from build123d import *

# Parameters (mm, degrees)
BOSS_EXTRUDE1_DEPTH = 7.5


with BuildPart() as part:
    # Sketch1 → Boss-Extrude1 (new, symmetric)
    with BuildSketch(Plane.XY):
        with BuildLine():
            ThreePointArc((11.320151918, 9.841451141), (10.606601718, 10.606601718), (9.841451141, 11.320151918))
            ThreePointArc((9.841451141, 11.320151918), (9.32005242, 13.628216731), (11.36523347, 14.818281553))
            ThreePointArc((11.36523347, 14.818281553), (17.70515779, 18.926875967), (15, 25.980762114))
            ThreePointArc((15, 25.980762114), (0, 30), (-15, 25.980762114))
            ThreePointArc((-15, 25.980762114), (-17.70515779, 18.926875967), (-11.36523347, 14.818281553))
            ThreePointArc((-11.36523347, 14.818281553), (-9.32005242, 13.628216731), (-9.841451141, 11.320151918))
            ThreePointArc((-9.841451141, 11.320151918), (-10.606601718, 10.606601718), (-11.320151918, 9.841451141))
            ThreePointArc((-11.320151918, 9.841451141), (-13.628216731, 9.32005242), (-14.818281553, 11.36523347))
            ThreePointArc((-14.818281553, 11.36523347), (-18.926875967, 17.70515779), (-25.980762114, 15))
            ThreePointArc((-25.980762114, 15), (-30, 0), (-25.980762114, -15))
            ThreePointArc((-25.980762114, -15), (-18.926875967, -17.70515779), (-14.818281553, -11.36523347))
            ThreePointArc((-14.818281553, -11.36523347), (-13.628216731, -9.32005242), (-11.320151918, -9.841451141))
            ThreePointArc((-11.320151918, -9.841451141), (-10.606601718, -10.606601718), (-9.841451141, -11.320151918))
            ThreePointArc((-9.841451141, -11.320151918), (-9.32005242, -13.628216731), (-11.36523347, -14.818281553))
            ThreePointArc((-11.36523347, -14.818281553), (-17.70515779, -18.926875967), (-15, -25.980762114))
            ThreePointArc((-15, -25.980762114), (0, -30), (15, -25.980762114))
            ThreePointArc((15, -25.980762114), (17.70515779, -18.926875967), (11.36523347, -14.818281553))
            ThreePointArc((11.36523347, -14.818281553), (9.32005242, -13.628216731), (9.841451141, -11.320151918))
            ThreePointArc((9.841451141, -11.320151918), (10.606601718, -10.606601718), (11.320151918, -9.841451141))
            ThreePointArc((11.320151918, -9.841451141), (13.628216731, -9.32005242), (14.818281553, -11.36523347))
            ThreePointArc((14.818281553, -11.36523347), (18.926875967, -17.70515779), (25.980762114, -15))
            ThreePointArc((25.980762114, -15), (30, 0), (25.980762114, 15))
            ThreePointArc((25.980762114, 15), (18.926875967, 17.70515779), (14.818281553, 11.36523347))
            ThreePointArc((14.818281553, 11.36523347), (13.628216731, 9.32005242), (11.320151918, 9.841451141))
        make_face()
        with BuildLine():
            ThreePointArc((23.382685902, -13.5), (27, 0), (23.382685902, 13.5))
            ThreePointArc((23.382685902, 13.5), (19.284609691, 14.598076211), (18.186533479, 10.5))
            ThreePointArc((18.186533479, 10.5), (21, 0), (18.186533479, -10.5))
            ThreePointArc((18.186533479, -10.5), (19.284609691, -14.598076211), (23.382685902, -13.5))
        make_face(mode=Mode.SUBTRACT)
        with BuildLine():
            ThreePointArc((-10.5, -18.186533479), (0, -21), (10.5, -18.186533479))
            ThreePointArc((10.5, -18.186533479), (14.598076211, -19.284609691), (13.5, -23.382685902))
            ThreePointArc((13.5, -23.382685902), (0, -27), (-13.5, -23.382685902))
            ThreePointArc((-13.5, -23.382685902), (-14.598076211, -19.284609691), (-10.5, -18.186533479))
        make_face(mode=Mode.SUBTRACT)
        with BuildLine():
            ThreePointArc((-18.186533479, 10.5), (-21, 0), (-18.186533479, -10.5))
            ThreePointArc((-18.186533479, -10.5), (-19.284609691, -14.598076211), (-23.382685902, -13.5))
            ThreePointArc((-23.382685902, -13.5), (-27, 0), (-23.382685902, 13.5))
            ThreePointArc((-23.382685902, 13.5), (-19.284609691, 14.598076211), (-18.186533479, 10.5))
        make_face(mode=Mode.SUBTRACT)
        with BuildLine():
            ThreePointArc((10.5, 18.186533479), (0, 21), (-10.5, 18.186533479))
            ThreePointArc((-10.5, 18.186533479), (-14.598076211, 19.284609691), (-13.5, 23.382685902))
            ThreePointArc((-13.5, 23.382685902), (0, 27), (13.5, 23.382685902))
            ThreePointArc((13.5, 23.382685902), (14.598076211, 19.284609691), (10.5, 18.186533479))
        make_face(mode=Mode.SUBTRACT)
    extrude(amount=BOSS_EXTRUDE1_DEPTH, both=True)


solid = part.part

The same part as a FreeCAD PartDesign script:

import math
import FreeCAD as App
import Part
import Sketcher

V = App.Vector
Q = App.Units.Quantity

doc = App.newDocument("Part")
body = doc.addObject("PartDesign::Body", "Body")

# Sketch on XY plane
sketch1 = body.newObject("Sketcher::SketchObject", "Sketch")
sketch1.AttachmentSupport = (doc.getObject("XY_Plane"), [""])
sketch1.MapMode = "FlatFace"
sketch1.addGeometry(Part.ArcOfCircle(Part.Circle(V(0, 0, 0), V(0, 0, 1), 15), math.radians(41), math.radians(49)), False)
sketch1.addGeometry(Part.ArcOfCircle(Part.Circle(V(11.2, 12.8, 0), V(0, 0, 1), 2), math.radians(84), math.radians(229)), False)
sketch1.addGeometry(Part.ArcOfCircle(Part.Circle(V(12, 20.8, 0), V(0, 0, 1), 6), math.radians(-96), math.radians(60)), False)
sketch1.addGeometry(Part.ArcOfCircle(Part.Circle(V(0, 0, 0), V(0, 0, 1), 30), math.radians(60), math.radians(120)), False)
sketch1.addGeometry(Part.ArcOfCircle(Part.Circle(V(-12, 20.8, 0), V(0, 0, 1), 6), math.radians(120), math.radians(276)), False)
sketch1.addGeometry(Part.ArcOfCircle(Part.Circle(V(-11.2, 12.8, 0), V(0, 0, 1), 2), math.radians(-49), math.radians(96)), False)
sketch1.addGeometry(Part.ArcOfCircle(Part.Circle(V(0, 0, 0), V(0, 0, 1), 15), math.radians(131), math.radians(139)), False)
sketch1.addGeometry(Part.ArcOfCircle(Part.Circle(V(-12.8, 11.2, 0), V(0, 0, 1), 2), math.radians(174), math.radians(319)), False)
sketch1.addGeometry(Part.ArcOfCircle(Part.Circle(V(-20.8, 12, 0), V(0, 0, 1), 6), math.radians(-6), math.radians(150)), False)
sketch1.addGeometry(Part.ArcOfCircle(Part.Circle(V(0, 0, 0), V(0, 0, 1), 30), math.radians(150), math.radians(210)), False)
sketch1.addGeometry(Part.ArcOfCircle(Part.Circle(V(-20.8, -12, 0), V(0, 0, 1), 6), math.radians(-150), math.radians(6)), False)
sketch1.addGeometry(Part.ArcOfCircle(Part.Circle(V(-12.8, -11.2, 0), V(0, 0, 1), 2), math.radians(41), math.radians(186)), False)
sketch1.addGeometry(Part.ArcOfCircle(Part.Circle(V(0, 0, 0), V(0, 0, 1), 15), math.radians(-139), math.radians(-131)), False)
sketch1.addGeometry(Part.ArcOfCircle(Part.Circle(V(-11.2, -12.8, 0), V(0, 0, 1), 2), math.radians(-96), math.radians(49)), False)
sketch1.addGeometry(Part.ArcOfCircle(Part.Circle(V(-12, -20.8, 0), V(0, 0, 1), 6), math.radians(84), math.radians(240)), False)
sketch1.addGeometry(Part.ArcOfCircle(Part.Circle(V(0, 0, 0), V(0, 0, 1), 30), math.radians(-120), math.radians(-60)), False)
sketch1.addGeometry(Part.ArcOfCircle(Part.Circle(V(12, -20.8, 0), V(0, 0, 1), 6), math.radians(-60), math.radians(96)), False)
sketch1.addGeometry(Part.ArcOfCircle(Part.Circle(V(11.2, -12.8, 0), V(0, 0, 1), 2), math.radians(131), math.radians(276)), False)
sketch1.addGeometry(Part.ArcOfCircle(Part.Circle(V(0, 0, 0), V(0, 0, 1), 15), math.radians(-49), math.radians(-41)), False)
sketch1.addGeometry(Part.ArcOfCircle(Part.Circle(V(12.8, -11.2, 0), V(0, 0, 1), 2), math.radians(-6), math.radians(139)), False)
sketch1.addGeometry(Part.ArcOfCircle(Part.Circle(V(20.8, -12, 0), V(0, 0, 1), 6), math.radians(174), math.radians(330)), False)
sketch1.addGeometry(Part.ArcOfCircle(Part.Circle(V(0, 0, 0), V(0, 0, 1), 30), math.radians(-30), math.radians(30)), False)
sketch1.addGeometry(Part.ArcOfCircle(Part.Circle(V(20.8, 12, 0), V(0, 0, 1), 6), math.radians(30), math.radians(186)), False)
sketch1.addGeometry(Part.ArcOfCircle(Part.Circle(V(12.8, 11.2, 0), V(0, 0, 1), 2), math.radians(-139), math.radians(6)), False)
sketch1.addGeometry(Part.ArcOfCircle(Part.Circle(V(-12, -20.8, 0), V(0, 0, 1), 3), math.radians(60), math.radians(240)), False)
sketch1.addGeometry(Part.ArcOfCircle(Part.Circle(V(0, 0, 0), V(0, 0, 1), 21), math.radians(-120), math.radians(-60)), False)
sketch1.addGeometry(Part.ArcOfCircle(Part.Circle(V(12, -20.8, 0), V(0, 0, 1), 3), math.radians(-60), math.radians(120)), False)
sketch1.addGeometry(Part.ArcOfCircle(Part.Circle(V(0, 0, 0), V(0, 0, 1), 27), math.radians(-120), math.radians(-60)), False)
sketch1.addGeometry(Part.ArcOfCircle(Part.Circle(V(-20.8, 12, 0), V(0, 0, 1), 3), math.radians(-30), math.radians(150)), False)
sketch1.addGeometry(Part.ArcOfCircle(Part.Circle(V(0, 0, 0), V(0, 0, 1), 21), math.radians(150), math.radians(210)), False)
sketch1.addGeometry(Part.ArcOfCircle(Part.Circle(V(-20.8, -12, 0), V(0, 0, 1), 3), math.radians(-150), math.radians(30)), False)
sketch1.addGeometry(Part.ArcOfCircle(Part.Circle(V(0, 0, 0), V(0, 0, 1), 27), math.radians(150), math.radians(210)), False)
sketch1.addGeometry(Part.ArcOfCircle(Part.Circle(V(0, 0, 0), V(0, 0, 1), 27), math.radians(-30), math.radians(30)), False)
sketch1.addGeometry(Part.ArcOfCircle(Part.Circle(V(20.8, -12, 0), V(0, 0, 1), 3), math.radians(150), math.radians(330)), False)
sketch1.addGeometry(Part.ArcOfCircle(Part.Circle(V(0, 0, 0), V(0, 0, 1), 21), math.radians(-30), math.radians(30)), False)
sketch1.addGeometry(Part.ArcOfCircle(Part.Circle(V(20.8, 12, 0), V(0, 0, 1), 3), math.radians(30), math.radians(210)), False)
sketch1.addGeometry(Part.ArcOfCircle(Part.Circle(V(12, 20.8, 0), V(0, 0, 1), 3), math.radians(-120), math.radians(60)), False)
sketch1.addGeometry(Part.ArcOfCircle(Part.Circle(V(0, 0, 0), V(0, 0, 1), 21), math.radians(60), math.radians(120)), False)
sketch1.addGeometry(Part.ArcOfCircle(Part.Circle(V(-12, 20.8, 0), V(0, 0, 1), 3), math.radians(120), math.radians(300)), False)
sketch1.addGeometry(Part.ArcOfCircle(Part.Circle(V(0, 0, 0), V(0, 0, 1), 27), math.radians(60), math.radians(120)), False)
sketch1.addConstraint(Sketcher.Constraint("Tangent", 0, 2, 1, 2))
sketch1.addConstraint(Sketcher.Constraint("Tangent", 1, 1, 2, 1))
sketch1.addConstraint(Sketcher.Constraint("Tangent", 2, 2, 3, 1))
sketch1.addConstraint(Sketcher.Constraint("Tangent", 3, 2, 4, 1))
sketch1.addConstraint(Sketcher.Constraint("Tangent", 4, 2, 5, 2))
sketch1.addConstraint(Sketcher.Constraint("Tangent", 5, 1, 6, 1))
sketch1.addConstraint(Sketcher.Constraint("Tangent", 6, 2, 7, 2))
sketch1.addConstraint(Sketcher.Constraint("Tangent", 7, 1, 8, 1))
sketch1.addConstraint(Sketcher.Constraint("Tangent", 8, 2, 9, 1))
sketch1.addConstraint(Sketcher.Constraint("Tangent", 9, 2, 10, 1))
sketch1.addConstraint(Sketcher.Constraint("Tangent", 10, 2, 11, 2))
sketch1.addConstraint(Sketcher.Constraint("Tangent", 11, 1, 12, 1))
sketch1.addConstraint(Sketcher.Constraint("Tangent", 12, 2, 13, 2))
sketch1.addConstraint(Sketcher.Constraint("Tangent", 13, 1, 14, 1))
sketch1.addConstraint(Sketcher.Constraint("Tangent", 14, 2, 15, 1))
sketch1.addConstraint(Sketcher.Constraint("Tangent", 15, 2, 16, 1))
sketch1.addConstraint(Sketcher.Constraint("Tangent", 16, 2, 17, 2))
sketch1.addConstraint(Sketcher.Constraint("Tangent", 17, 1, 18, 1))
sketch1.addConstraint(Sketcher.Constraint("Tangent", 18, 2, 19, 2))
sketch1.addConstraint(Sketcher.Constraint("Tangent", 19, 1, 20, 1))
sketch1.addConstraint(Sketcher.Constraint("Tangent", 20, 2, 21, 1))
sketch1.addConstraint(Sketcher.Constraint("Tangent", 21, 2, 22, 1))
sketch1.addConstraint(Sketcher.Constraint("Tangent", 22, 2, 23, 2))
sketch1.addConstraint(Sketcher.Constraint("Tangent", 23, 1, 0, 1))
sketch1.addConstraint(Sketcher.Constraint("Tangent", 24, 1, 25, 1))
sketch1.addConstraint(Sketcher.Constraint("Tangent", 25, 2, 26, 2))
sketch1.addConstraint(Sketcher.Constraint("Tangent", 26, 1, 27, 2))
sketch1.addConstraint(Sketcher.Constraint("Tangent", 27, 1, 24, 2))
sketch1.addConstraint(Sketcher.Constraint("Tangent", 28, 1, 29, 1))
sketch1.addConstraint(Sketcher.Constraint("Tangent", 29, 2, 30, 2))
sketch1.addConstraint(Sketcher.Constraint("Tangent", 30, 1, 31, 2))
sketch1.addConstraint(Sketcher.Constraint("Tangent", 31, 1, 28, 2))
sketch1.addConstraint(Sketcher.Constraint("Tangent", 32, 1, 33, 2))
sketch1.addConstraint(Sketcher.Constraint("Tangent", 33, 1, 34, 1))
sketch1.addConstraint(Sketcher.Constraint("Tangent", 34, 2, 35, 2))
sketch1.addConstraint(Sketcher.Constraint("Tangent", 35, 1, 32, 2))
sketch1.addConstraint(Sketcher.Constraint("Tangent", 36, 1, 37, 1))
sketch1.addConstraint(Sketcher.Constraint("Tangent", 37, 2, 38, 2))
sketch1.addConstraint(Sketcher.Constraint("Tangent", 38, 1, 39, 2))
sketch1.addConstraint(Sketcher.Constraint("Tangent", 39, 1, 36, 2))
sketch1.addConstraint(Sketcher.Constraint("Coincident", 0, 3, -1, 1))
sketch1.addConstraint(Sketcher.Constraint("Coincident", 3, 3, -1, 1))
sketch1.addConstraint(Sketcher.Constraint("Coincident", 6, 3, -1, 1))
sketch1.addConstraint(Sketcher.Constraint("Coincident", 9, 3, -1, 1))
sketch1.addConstraint(Sketcher.Constraint("Coincident", 12, 3, -1, 1))
sketch1.addConstraint(Sketcher.Constraint("Coincident", 15, 3, -1, 1))
sketch1.addConstraint(Sketcher.Constraint("Coincident", 18, 3, -1, 1))
sketch1.addConstraint(Sketcher.Constraint("Coincident", 21, 3, -1, 1))
sketch1.addConstraint(Sketcher.Constraint("Coincident", 25, 3, -1, 1))
sketch1.addConstraint(Sketcher.Constraint("Coincident", 27, 3, -1, 1))
sketch1.addConstraint(Sketcher.Constraint("Coincident", 29, 3, -1, 1))
sketch1.addConstraint(Sketcher.Constraint("Coincident", 31, 3, -1, 1))
sketch1.addConstraint(Sketcher.Constraint("Coincident", 32, 3, -1, 1))
sketch1.addConstraint(Sketcher.Constraint("Coincident", 34, 3, -1, 1))
sketch1.addConstraint(Sketcher.Constraint("Coincident", 37, 3, -1, 1))
sketch1.addConstraint(Sketcher.Constraint("Coincident", 39, 3, -1, 1))
sketch1.addConstraint(Sketcher.Constraint("Coincident", 24, 3, 14, 3))
sketch1.addConstraint(Sketcher.Constraint("Coincident", 26, 3, 16, 3))
sketch1.addConstraint(Sketcher.Constraint("Coincident", 28, 3, 8, 3))
sketch1.addConstraint(Sketcher.Constraint("Coincident", 30, 3, 10, 3))
sketch1.addConstraint(Sketcher.Constraint("Coincident", 33, 3, 20, 3))
sketch1.addConstraint(Sketcher.Constraint("Coincident", 35, 3, 22, 3))
sketch1.addConstraint(Sketcher.Constraint("Coincident", 36, 3, 2, 3))
sketch1.addConstraint(Sketcher.Constraint("Coincident", 38, 3, 4, 3))
sketch1.addConstraint(Sketcher.Constraint("Equal", 1, 5))
sketch1.addConstraint(Sketcher.Constraint("Equal", 0, 6))
sketch1.addConstraint(Sketcher.Constraint("Equal", 5, 7))
sketch1.addConstraint(Sketcher.Constraint("Equal", 4, 8))
sketch1.addConstraint(Sketcher.Constraint("Equal", 3, 9))
sketch1.addConstraint(Sketcher.Constraint("Equal", 7, 11))
sketch1.addConstraint(Sketcher.Constraint("Equal", 6, 12))
sketch1.addConstraint(Sketcher.Constraint("Equal", 11, 13))
sketch1.addConstraint(Sketcher.Constraint("Equal", 10, 14))
sketch1.addConstraint(Sketcher.Constraint("Equal", 9, 15))
sketch1.addConstraint(Sketcher.Constraint("Equal", 13, 17))
sketch1.addConstraint(Sketcher.Constraint("Equal", 12, 18))
sketch1.addConstraint(Sketcher.Constraint("Equal", 17, 19))
sketch1.addConstraint(Sketcher.Constraint("Equal", 16, 20))
sketch1.addConstraint(Sketcher.Constraint("Equal", 15, 21))
sketch1.addConstraint(Sketcher.Constraint("Equal", 19, 23))
sketch1.addConstraint(Sketcher.Constraint("Equal", 26, 28))
sketch1.addConstraint(Sketcher.Constraint("Equal", 31, 32))
sketch1.addConstraint(Sketcher.Constraint("Equal", 35, 36))
sketch1.addConstraint(Sketcher.Constraint("Horizontal", 2, 3, 4, 3))
sketch1.addConstraint(Sketcher.Constraint("Horizontal", 14, 3, 16, 3))
sketch1.addConstraint(Sketcher.Constraint("Horizontal", 11, 3, 19, 3))
sketch1.addConstraint(Sketcher.Constraint("Horizontal", 8, 3, 22, 3))
sketch1.addConstraint(Sketcher.Constraint("Vertical", 8, 3, 10, 3))
sketch1.addConstraint(Sketcher.Constraint("Vertical", 5, 3, 13, 3))
sketch1.addConstraint(Sketcher.Constraint("Radius", 0, Q("15 mm")))
sketch1.addConstraint(Sketcher.Constraint("Radius", 1, Q("2 mm")))
sketch1.addConstraint(Sketcher.Constraint("Radius", 2, Q("6 mm")))
sketch1.addConstraint(Sketcher.Constraint("Radius", 3, Q("30 mm")))
sketch1.addConstraint(Sketcher.Constraint("Radius", 24, Q("3 mm")))
sketch1.addConstraint(Sketcher.Constraint("DistanceX", -1, 1, 2, 3, Q("12 mm")))
sketch1.addConstraint(Sketcher.Constraint("DistanceY", -1, 1, 8, 3, Q("12 mm")))
pad1 = body.newObject("PartDesign::Pad", "Pad")
pad1.Profile = sketch1
pad1.Length = 15
pad1.Midplane = True

doc.recompute()
